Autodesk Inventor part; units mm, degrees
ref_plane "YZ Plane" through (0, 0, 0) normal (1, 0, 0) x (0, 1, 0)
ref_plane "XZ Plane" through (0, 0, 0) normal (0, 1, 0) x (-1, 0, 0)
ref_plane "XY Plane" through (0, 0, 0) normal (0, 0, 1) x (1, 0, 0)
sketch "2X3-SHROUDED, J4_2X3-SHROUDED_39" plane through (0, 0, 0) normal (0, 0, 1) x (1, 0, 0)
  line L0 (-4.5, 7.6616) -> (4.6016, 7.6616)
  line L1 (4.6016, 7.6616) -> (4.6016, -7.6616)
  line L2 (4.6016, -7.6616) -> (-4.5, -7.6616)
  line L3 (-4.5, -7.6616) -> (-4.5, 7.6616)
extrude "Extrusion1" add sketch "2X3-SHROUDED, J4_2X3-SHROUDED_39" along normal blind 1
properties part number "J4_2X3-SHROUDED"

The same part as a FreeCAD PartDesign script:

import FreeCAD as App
import Part
import Sketcher
from FreeCAD import Vector
Q = App.Units.Quantity

doc = App.newDocument("Part")
body = doc.addObject("PartDesign::Body", "Body")

sketch1 = body.newObject("Sketcher::SketchObject", "Sketch")
sketch1.AttachmentSupport = (doc.getObject("XY_Plane"), [""])
sketch1.MapMode = "FlatFace"
sketch1.addGeometry([
    Part.LineSegment(Vector(5, 8, 0), Vector(-4, 8, 0)),
    Part.LineSegment(Vector(-4, 8, 0), Vector(-4, -8, 0)),
    Part.LineSegment(Vector(-4, -8, 0), Vector(5, -8, 0)),
    Part.LineSegment(Vector(5, -8, 0), Vector(5, 8, 0)),
], False)
sketch1.addConstraint([
    Sketcher.Constraint("Coincident", 0, 2, 1, 1),
    Sketcher.Constraint("Coincident", 1, 2, 2, 1),
    Sketcher.Constraint("Coincident", 2, 2, 3, 1),
    Sketcher.Constraint("Coincident", 3, 2, 0, 1),
    Sketcher.Constraint("Horizontal", 0),
    Sketcher.Constraint("Vertical", 1),
    Sketcher.Constraint("Horizontal", 2),
    Sketcher.Constraint("Vertical", 3),
    Sketcher.Constraint("DistanceX", 0, 2, -1, 1, Q("4.5 mm")),
    Sketcher.Constraint("DistanceX", 0, 2, 0, 1, Q("9.1016 mm")),
    Sketcher.Constraint("DistanceY", 1, 2, 1, 1, Q("15.3232 mm")),
    Sketcher.Constraint("DistanceY", -1, 1, 0, 2, Q("7.6616 mm")),
])
pad1 = body.newObject("PartDesign::Pad", "Pad")
pad1.Profile = sketch1
pad1.Length = 1

doc.recompute()
